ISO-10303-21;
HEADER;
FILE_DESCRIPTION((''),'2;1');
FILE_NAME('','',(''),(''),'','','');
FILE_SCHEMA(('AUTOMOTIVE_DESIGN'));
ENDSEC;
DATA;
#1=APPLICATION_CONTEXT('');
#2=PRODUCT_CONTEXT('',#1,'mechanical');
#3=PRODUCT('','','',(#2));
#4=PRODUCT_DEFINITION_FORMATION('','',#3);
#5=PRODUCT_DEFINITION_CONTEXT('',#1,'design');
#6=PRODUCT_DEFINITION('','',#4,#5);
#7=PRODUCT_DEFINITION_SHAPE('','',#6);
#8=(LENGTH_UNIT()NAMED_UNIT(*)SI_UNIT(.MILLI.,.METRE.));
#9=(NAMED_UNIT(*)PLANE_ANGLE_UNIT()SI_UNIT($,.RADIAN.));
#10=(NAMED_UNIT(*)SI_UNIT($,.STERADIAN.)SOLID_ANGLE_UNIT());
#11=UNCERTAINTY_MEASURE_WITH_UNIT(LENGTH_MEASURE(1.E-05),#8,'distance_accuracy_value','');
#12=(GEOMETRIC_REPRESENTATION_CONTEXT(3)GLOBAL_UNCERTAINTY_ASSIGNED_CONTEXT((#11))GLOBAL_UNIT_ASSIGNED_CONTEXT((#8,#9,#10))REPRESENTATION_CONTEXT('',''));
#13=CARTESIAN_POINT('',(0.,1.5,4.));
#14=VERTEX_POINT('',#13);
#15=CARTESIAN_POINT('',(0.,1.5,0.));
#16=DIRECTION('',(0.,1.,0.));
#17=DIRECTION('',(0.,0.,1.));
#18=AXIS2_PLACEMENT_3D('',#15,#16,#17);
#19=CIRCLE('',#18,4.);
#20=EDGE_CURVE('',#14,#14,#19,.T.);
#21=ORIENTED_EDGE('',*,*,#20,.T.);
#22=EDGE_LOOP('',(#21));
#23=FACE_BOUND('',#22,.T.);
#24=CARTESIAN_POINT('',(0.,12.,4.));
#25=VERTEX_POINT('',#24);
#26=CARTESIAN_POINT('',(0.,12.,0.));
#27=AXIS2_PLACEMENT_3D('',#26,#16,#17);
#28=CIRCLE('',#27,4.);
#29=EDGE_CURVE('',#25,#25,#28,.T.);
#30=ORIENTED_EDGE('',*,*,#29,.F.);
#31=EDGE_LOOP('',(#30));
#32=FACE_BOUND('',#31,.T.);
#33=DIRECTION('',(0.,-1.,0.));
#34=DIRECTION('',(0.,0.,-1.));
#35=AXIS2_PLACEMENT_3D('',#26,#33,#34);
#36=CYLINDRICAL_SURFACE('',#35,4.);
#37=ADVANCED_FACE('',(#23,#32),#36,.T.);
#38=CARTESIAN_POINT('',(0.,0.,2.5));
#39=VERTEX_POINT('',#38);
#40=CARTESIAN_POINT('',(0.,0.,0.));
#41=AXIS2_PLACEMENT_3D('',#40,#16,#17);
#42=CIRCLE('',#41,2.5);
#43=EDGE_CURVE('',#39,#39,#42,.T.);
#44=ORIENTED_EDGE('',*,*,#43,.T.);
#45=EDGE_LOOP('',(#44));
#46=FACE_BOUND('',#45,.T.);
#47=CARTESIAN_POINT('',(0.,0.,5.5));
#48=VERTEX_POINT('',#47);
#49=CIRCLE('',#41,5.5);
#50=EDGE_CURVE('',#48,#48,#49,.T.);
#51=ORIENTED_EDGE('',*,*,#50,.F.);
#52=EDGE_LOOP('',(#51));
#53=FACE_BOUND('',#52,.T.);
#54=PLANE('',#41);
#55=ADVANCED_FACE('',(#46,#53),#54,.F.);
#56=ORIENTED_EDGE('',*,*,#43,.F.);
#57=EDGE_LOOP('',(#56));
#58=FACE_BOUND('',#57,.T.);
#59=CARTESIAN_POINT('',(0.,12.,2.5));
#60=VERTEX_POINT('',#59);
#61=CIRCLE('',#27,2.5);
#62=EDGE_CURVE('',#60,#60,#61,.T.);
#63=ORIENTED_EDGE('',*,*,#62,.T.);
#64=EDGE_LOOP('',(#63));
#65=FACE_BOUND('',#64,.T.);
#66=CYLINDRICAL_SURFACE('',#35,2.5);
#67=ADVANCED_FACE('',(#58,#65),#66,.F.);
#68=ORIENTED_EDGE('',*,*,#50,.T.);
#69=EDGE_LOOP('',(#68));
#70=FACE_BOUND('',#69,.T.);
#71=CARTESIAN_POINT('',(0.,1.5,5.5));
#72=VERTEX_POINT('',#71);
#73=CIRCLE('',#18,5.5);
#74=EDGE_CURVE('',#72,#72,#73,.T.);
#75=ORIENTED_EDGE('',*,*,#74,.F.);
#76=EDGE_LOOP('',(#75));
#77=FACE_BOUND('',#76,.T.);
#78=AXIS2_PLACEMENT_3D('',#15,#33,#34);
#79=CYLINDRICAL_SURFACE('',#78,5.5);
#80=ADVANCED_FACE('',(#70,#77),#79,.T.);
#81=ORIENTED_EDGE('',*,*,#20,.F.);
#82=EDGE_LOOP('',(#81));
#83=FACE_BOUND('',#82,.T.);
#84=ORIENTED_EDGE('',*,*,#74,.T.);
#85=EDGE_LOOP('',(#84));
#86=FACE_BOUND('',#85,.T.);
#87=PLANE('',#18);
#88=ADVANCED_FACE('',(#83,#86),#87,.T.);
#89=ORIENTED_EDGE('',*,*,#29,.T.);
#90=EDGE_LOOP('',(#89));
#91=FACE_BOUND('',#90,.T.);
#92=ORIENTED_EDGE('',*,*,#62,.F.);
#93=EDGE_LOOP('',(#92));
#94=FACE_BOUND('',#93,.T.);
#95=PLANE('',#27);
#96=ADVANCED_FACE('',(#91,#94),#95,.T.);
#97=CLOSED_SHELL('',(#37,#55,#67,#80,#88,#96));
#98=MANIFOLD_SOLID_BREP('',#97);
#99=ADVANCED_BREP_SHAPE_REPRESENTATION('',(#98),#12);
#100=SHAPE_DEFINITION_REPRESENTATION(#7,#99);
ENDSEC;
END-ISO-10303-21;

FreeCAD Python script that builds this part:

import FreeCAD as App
import Part
import Sketcher

V = App.Vector
Q = App.Units.Quantity

doc = App.newDocument("Part")
params = doc.addObject("Spreadsheet::Sheet", "Params")
for row, (alias, value) in enumerate([
    ("sketch1_diameter", "8 mm"),
    ("sketch1_diameter2", "5 mm"),
    ("pad1_length", "12 mm"),
    ("sketch2_diameter", "11 mm"),
    ("sketch2_diameter2", "8 mm"),
    ("pad2_length", "1.5 mm"),
], start=1):
    params.set(f"A{row}", alias)
    params.set(f"B{row}", "=" + value)
    params.setAlias(f"B{row}", alias)

body = doc.addObject("PartDesign::Body", "Body")

sketch1 = doc.addObject("Sketcher::SketchObject", "Sketch")
body.addObject(sketch1)
sketch1.AttachmentSupport = (doc.XZ_Plane, [""])
sketch1.MapMode = "FlatFace"
sketch1.addGeometry(Part.Circle(V(0, 0, 0), V(0, 0, 1), 4), False)
sketch1.addGeometry(Part.Circle(V(0, 0, 0), V(0, 0, 1), 2.5), False)
sketch1.addConstraint(Sketcher.Constraint("Coincident", 0, 3, -1, 1))
sketch1.addConstraint(Sketcher.Constraint("Coincident", 1, 3, -1, 1))
sketch1.addConstraint(Sketcher.Constraint("Diameter", 0, Q("8 mm")))
sketch1.addConstraint(Sketcher.Constraint("Diameter", 1, Q("5 mm")))
sketch1.setExpression("Constraints[2]", "Params.sketch1_diameter")
sketch1.setExpression("Constraints[3]", "Params.sketch1_diameter2")
pad1 = doc.addObject("PartDesign::Pad", "Pad")
body.addObject(pad1)
pad1.Profile = sketch1
pad1.setExpression("Length", "Params.pad1_length")
pad1.Reversed = True

sketch2 = doc.addObject("Sketcher::SketchObject", "Sketch001")
body.addObject(sketch2)
sketch2.AttachmentSupport = (doc.XZ_Plane, [""])
sketch2.MapMode = "FlatFace"
sketch2.addGeometry(Part.Circle(V(0, 0, 0), V(0, 0, 1), 5.5), False)
sketch2.addGeometry(Part.Circle(V(0, 0, 0), V(0, 0, 1), 4), False)
sketch2.addConstraint(Sketcher.Constraint("Coincident", 0, 3, -1, 1))
sketch2.addConstraint(Sketcher.Constraint("Coincident", 1, 3, -1, 1))
sketch2.addConstraint(Sketcher.Constraint("Diameter", 0, Q("11 mm")))
sketch2.addConstraint(Sketcher.Constraint("Diameter", 1, Q("8 mm")))
sketch2.setExpression("Constraints[2]", "Params.sketch2_diameter")
sketch2.setExpression("Constraints[3]", "Params.sketch2_diameter2")
pad2 = doc.addObject("PartDesign::Pad", "Pad001")
body.addObject(pad2)
pad2.Profile = sketch2
pad2.setExpression("Length", "Params.pad2_length")
pad2.Reversed = True

doc.recompute()
